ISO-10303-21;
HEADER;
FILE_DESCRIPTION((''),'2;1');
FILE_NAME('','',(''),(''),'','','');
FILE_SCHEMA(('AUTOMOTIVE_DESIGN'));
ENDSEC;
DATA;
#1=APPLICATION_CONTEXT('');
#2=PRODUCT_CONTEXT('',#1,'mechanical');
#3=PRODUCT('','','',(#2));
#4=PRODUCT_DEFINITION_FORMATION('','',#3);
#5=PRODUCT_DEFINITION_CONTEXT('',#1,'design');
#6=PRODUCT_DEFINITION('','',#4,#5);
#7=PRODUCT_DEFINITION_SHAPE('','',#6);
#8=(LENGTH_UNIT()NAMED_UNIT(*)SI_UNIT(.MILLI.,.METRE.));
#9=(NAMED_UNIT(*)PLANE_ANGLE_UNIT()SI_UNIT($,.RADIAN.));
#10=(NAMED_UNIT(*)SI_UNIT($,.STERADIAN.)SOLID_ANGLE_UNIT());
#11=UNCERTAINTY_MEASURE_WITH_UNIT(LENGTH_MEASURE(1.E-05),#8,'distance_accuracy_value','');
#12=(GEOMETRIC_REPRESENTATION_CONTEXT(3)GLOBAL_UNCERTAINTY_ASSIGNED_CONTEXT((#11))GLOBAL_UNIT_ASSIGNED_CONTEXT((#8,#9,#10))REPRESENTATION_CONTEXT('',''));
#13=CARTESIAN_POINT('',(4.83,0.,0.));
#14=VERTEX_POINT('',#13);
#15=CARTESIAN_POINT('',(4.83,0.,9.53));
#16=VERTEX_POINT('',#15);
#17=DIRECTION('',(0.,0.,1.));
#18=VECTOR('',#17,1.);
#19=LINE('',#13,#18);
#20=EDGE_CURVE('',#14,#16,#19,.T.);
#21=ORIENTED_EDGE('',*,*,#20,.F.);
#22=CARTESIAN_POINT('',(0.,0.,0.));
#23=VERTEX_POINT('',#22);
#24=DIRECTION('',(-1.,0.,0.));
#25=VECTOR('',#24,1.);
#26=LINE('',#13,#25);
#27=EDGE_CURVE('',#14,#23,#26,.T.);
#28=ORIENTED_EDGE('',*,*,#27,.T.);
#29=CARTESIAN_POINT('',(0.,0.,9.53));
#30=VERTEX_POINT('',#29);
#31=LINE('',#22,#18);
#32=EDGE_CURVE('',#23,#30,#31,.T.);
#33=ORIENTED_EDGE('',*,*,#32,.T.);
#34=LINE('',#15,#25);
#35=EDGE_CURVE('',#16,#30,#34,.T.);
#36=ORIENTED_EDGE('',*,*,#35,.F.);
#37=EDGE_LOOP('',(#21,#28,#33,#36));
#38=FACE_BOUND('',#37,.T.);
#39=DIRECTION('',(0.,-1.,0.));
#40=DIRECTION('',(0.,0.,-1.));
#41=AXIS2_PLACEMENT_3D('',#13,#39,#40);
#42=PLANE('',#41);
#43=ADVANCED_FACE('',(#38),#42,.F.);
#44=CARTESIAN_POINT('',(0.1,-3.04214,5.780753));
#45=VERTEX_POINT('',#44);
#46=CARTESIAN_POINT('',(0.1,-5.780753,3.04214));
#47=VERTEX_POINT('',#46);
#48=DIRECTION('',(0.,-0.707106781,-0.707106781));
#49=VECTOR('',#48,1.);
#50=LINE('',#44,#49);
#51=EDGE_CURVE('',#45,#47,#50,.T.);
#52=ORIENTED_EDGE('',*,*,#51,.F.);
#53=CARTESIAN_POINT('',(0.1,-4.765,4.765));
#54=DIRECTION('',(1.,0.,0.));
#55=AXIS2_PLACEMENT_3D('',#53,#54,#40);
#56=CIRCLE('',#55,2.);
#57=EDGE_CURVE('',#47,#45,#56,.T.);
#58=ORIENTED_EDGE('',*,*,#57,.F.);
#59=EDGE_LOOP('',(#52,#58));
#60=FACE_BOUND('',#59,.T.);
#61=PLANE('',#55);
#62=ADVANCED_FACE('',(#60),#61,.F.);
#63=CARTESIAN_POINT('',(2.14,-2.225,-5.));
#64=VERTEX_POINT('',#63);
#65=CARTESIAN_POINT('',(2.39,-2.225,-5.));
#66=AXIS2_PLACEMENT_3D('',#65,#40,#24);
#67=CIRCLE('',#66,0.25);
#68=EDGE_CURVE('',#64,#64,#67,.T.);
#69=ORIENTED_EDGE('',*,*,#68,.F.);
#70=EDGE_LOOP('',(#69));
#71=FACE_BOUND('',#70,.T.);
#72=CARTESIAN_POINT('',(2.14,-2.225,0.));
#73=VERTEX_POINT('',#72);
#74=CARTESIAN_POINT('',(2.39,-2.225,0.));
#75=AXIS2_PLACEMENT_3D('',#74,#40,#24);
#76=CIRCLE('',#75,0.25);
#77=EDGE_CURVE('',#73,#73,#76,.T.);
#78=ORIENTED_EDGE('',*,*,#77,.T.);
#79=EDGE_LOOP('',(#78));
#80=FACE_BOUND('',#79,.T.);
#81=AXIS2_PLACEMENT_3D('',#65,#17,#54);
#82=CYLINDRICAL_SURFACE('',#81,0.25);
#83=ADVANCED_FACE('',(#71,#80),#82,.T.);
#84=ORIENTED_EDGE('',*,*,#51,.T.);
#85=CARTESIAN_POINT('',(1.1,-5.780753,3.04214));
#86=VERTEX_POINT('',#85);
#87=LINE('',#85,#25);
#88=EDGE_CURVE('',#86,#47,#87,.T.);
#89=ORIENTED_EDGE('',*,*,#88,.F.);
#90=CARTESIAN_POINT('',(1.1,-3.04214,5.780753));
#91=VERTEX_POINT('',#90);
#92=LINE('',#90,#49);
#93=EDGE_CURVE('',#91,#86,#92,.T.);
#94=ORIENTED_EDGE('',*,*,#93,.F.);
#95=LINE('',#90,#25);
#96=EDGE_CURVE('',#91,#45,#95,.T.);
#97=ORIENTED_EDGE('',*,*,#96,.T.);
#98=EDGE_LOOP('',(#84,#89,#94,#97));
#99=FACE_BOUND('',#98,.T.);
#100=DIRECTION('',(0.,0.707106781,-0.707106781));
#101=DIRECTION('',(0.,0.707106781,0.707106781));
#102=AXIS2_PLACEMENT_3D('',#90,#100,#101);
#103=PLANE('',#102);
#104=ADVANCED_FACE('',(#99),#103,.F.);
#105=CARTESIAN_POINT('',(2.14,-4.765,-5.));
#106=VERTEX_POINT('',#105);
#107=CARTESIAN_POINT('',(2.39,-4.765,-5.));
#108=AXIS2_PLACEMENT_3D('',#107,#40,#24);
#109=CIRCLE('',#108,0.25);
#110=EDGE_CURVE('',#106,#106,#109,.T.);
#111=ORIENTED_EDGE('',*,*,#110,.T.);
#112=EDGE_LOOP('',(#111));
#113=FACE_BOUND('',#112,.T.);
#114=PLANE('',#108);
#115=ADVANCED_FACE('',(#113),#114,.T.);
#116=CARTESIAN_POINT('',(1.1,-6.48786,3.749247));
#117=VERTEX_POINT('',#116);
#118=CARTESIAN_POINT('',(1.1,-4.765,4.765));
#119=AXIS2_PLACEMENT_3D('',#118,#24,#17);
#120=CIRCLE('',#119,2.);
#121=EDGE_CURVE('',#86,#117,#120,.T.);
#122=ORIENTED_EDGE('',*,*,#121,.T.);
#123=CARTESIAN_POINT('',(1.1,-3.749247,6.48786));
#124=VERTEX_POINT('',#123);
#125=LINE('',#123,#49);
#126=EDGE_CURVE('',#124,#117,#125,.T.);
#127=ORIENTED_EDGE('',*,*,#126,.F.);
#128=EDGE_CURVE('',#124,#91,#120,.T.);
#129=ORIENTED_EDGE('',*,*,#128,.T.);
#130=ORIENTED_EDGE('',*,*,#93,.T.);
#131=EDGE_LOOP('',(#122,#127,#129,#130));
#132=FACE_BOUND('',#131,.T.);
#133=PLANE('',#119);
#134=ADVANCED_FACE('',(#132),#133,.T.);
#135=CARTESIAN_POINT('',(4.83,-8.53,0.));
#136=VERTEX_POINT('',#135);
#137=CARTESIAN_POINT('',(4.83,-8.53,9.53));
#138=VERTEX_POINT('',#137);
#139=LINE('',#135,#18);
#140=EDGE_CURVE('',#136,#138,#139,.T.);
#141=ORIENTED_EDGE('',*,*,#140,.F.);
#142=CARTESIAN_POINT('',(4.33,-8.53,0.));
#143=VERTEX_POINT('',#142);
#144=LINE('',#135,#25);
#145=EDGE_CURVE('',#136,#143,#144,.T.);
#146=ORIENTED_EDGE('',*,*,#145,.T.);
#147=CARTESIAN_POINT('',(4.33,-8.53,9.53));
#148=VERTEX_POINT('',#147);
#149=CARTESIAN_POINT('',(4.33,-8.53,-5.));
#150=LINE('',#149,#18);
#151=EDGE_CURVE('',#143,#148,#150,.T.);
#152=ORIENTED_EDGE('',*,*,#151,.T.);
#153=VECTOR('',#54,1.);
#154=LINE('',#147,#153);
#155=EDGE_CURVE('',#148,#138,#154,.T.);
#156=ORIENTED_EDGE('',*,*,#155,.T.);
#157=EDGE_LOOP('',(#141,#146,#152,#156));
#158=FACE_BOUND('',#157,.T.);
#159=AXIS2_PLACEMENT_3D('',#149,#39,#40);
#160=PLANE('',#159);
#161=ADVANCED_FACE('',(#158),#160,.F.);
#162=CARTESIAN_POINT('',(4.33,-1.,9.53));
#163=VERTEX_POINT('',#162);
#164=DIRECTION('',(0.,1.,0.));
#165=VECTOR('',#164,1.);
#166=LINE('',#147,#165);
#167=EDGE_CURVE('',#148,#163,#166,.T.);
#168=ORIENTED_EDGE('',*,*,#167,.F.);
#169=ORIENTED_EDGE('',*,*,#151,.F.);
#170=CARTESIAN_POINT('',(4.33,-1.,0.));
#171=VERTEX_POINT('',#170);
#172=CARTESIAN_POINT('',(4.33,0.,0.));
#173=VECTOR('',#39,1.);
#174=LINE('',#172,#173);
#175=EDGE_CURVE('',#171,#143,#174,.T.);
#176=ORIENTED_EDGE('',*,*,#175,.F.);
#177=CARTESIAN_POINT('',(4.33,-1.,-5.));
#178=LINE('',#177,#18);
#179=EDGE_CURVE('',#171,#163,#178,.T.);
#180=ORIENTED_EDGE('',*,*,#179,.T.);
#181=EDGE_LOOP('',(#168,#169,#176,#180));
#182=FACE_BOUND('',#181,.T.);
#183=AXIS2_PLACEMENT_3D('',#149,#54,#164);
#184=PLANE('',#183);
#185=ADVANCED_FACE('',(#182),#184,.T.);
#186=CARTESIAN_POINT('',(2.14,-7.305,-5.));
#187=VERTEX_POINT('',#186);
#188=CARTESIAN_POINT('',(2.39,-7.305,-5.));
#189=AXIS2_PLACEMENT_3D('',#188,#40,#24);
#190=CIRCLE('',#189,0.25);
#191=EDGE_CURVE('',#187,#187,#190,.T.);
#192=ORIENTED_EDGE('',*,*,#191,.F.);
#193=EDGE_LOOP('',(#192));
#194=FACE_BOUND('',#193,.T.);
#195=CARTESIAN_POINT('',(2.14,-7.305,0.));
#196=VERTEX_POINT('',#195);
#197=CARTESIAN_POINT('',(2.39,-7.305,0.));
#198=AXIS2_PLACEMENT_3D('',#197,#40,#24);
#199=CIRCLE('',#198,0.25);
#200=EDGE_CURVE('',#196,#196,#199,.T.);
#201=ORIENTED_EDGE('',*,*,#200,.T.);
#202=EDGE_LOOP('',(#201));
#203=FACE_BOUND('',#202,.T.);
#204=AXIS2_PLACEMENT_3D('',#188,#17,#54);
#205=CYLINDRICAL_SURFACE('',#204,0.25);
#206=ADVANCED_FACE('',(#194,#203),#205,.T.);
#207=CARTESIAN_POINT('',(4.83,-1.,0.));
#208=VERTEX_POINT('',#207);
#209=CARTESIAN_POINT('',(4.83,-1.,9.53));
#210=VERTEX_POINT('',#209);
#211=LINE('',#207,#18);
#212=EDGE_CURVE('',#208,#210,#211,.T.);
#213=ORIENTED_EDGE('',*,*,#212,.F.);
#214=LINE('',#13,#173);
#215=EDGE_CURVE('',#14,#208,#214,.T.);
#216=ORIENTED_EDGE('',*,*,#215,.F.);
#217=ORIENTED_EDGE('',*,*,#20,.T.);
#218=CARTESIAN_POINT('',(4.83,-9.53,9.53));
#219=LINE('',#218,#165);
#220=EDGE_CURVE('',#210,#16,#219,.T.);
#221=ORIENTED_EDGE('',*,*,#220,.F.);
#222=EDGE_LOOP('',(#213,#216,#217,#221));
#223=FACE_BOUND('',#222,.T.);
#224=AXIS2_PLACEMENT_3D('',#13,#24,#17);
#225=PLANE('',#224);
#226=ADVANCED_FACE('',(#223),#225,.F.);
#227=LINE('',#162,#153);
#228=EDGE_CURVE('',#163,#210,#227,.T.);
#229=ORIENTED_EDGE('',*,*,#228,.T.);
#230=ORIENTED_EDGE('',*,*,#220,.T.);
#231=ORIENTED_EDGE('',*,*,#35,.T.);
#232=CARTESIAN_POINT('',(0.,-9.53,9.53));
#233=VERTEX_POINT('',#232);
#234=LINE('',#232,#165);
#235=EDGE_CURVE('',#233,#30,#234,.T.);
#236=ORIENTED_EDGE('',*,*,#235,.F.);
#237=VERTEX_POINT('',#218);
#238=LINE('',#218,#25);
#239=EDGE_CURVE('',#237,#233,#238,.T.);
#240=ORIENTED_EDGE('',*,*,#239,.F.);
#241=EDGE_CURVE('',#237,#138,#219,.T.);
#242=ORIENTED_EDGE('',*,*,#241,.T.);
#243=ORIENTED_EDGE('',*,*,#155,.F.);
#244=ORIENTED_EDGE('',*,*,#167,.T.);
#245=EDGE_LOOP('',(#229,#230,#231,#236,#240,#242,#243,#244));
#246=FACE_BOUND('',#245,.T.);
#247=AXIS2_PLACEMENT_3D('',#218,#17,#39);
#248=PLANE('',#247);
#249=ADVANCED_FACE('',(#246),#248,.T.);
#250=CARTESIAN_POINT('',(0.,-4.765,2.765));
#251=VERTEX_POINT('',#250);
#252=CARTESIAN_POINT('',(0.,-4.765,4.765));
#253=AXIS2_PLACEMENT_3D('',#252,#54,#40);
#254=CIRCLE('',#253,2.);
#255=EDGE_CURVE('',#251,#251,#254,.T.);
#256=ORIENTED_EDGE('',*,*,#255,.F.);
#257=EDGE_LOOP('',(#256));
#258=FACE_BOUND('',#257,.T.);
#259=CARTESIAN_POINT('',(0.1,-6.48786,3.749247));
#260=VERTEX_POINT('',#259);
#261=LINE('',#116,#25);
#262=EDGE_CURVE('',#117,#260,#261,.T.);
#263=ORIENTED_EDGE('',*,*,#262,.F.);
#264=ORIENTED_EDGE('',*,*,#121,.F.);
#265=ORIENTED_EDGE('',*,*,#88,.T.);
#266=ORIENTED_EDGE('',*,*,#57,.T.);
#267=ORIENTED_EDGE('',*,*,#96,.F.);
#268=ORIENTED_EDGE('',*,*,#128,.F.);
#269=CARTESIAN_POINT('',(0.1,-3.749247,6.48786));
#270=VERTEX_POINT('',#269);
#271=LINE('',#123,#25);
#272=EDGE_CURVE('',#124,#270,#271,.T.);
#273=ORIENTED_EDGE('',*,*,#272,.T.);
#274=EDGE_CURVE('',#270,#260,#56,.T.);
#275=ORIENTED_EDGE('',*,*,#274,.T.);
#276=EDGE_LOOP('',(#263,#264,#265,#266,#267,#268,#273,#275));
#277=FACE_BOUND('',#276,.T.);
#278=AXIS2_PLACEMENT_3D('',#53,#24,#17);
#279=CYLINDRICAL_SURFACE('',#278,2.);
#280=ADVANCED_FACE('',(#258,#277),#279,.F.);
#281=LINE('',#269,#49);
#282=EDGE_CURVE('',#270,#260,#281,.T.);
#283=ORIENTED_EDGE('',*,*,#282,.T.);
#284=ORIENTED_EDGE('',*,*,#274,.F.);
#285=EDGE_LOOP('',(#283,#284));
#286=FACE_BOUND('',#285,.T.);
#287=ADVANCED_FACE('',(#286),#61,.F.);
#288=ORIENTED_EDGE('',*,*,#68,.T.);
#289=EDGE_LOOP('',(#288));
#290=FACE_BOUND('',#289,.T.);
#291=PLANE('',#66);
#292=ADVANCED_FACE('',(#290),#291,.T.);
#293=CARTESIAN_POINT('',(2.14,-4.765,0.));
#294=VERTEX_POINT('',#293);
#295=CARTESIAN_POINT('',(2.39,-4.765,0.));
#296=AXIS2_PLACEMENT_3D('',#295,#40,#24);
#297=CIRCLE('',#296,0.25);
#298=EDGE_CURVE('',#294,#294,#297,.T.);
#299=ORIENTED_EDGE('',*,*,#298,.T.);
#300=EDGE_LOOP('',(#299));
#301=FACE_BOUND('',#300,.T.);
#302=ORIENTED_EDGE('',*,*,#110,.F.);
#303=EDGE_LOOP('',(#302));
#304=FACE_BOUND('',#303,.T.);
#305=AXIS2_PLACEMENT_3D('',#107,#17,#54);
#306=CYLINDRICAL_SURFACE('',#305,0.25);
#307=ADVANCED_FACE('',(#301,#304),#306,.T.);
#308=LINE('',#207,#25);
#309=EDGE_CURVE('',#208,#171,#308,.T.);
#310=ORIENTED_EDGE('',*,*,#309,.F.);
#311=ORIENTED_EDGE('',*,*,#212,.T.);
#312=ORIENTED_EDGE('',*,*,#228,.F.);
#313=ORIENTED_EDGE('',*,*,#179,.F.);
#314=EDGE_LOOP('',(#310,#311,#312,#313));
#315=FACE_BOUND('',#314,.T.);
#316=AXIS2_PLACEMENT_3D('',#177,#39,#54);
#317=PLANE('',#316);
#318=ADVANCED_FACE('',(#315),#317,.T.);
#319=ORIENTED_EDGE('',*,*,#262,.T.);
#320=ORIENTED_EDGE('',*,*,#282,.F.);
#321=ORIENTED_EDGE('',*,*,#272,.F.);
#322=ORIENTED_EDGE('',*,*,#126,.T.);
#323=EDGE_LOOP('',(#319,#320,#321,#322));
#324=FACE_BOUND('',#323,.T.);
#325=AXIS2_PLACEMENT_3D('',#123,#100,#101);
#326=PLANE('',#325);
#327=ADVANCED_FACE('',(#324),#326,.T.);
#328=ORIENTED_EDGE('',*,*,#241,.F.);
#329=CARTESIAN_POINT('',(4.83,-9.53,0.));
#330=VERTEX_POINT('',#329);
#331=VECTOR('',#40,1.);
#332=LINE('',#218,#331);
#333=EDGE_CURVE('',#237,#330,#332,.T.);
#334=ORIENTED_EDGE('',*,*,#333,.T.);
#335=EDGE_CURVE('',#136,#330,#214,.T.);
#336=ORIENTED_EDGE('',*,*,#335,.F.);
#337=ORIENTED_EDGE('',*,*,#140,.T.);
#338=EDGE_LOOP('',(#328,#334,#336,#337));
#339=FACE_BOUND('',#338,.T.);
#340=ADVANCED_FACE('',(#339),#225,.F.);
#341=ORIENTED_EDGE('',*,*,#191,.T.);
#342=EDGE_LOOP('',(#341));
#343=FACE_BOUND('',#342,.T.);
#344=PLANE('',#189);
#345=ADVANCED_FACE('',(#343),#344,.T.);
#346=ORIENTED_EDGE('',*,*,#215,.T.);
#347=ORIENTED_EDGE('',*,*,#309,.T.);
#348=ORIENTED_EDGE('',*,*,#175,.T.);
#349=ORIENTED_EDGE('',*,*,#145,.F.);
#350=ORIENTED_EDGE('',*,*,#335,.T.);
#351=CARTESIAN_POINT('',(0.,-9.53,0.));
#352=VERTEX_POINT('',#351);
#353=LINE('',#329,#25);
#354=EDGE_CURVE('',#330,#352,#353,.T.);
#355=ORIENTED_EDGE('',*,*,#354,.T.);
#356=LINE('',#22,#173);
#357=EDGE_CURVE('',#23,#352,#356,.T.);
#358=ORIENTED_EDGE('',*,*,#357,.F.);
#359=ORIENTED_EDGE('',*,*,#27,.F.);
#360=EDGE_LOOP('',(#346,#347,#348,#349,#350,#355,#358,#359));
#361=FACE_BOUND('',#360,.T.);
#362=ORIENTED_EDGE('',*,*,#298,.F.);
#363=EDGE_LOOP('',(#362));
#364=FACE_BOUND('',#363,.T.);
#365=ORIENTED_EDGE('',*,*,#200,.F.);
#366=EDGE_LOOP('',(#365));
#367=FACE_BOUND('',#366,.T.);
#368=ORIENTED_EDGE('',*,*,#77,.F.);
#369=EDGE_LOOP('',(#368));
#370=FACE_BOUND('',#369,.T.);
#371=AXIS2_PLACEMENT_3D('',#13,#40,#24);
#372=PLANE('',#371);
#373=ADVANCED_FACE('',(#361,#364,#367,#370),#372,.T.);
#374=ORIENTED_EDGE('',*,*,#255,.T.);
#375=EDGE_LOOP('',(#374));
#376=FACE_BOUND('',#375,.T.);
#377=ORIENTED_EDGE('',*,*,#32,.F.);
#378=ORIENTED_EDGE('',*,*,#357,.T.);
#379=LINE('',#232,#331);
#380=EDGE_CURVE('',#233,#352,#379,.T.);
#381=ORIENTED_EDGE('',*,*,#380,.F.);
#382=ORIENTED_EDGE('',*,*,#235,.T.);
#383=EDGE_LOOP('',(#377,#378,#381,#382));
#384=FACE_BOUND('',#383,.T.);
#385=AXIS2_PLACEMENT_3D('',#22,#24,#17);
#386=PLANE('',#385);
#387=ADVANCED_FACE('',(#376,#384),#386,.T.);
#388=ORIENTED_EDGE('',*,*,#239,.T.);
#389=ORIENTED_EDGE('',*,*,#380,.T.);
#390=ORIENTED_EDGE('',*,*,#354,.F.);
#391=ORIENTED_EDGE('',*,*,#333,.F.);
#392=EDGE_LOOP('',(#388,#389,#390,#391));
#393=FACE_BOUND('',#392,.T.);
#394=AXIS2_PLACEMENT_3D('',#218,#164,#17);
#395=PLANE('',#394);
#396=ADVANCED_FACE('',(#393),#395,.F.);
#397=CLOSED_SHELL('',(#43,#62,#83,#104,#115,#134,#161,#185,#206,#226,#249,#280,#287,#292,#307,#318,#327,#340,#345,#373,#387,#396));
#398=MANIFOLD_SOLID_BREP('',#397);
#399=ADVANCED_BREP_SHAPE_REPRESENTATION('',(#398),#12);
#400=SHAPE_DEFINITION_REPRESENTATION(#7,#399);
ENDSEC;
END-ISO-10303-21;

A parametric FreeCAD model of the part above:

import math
import FreeCAD as App
import Part
import Sketcher

V = App.Vector
Q = App.Units.Quantity

doc = App.newDocument("Part")
body = doc.addObject("PartDesign::Body", "Body")

# Sketch on YZ plane
sketch1 = doc.addObject("Sketcher::SketchObject", "Sketch")
body.addObject(sketch1)
sketch1.AttachmentSupport = (doc.YZ_Plane, [""])
sketch1.MapMode = "FlatFace"
sketch1.addGeometry([
    Part.LineSegment(V(-9.53, 0, 0), V(0, 0, 0)),
    Part.LineSegment(V(0, 0, 0), V(0, 9.53, 0)),
    Part.LineSegment(V(0, 9.53, 0), V(-9.53, 9.53, 0)),
    Part.LineSegment(V(-9.53, 9.53, 0), V(-9.53, 0, 0)),
], False)
sketch1.addConstraint([
    Sketcher.Constraint("Coincident", 0, 2, 1, 1),
    Sketcher.Constraint("Coincident", 1, 2, 2, 1),
    Sketcher.Constraint("Coincident", 2, 2, 3, 1),
    Sketcher.Constraint("Coincident", 3, 2, 0, 1),
    Sketcher.Constraint("Horizontal", 0),
    Sketcher.Constraint("Vertical", 1),
    Sketcher.Constraint("Horizontal", 2),
    Sketcher.Constraint("Vertical", 3),
    Sketcher.Constraint("Coincident", 0, 2, -1, 1),
    Sketcher.Constraint("Equal", 2, 1),
    Sketcher.Constraint("DistanceX", 0, 1, 0, 2, 9.53),
])
pad1 = doc.addObject("PartDesign::Pad", "Pad")
body.addObject(pad1)
pad1.Profile = sketch1
pad1.Length = 4.83

# Sketch on YZ plane
sketch2 = doc.addObject("Sketcher::SketchObject", "Sketch001")
body.addObject(sketch2)
sketch2.AttachmentSupport = (doc.YZ_Plane, [""])
sketch2.MapMode = "FlatFace"
sketch2.addGeometry(Part.Circle(V(-4.765, 4.765, 0), V(0, 0, 1), 2), False)
sketch2.addConstraint([
    Sketcher.Constraint("Diameter", 0, 4.0),
    Sketcher.Constraint("DistanceX", 0, 3, -1, 1, 4.765),
    Sketcher.Constraint("DistanceY", -1, 1, 0, 3, 4.765),
])
pocket1 = doc.addObject("PartDesign::Pocket", "Pocket")
body.addObject(pocket1)
pocket1.Profile = sketch2
pocket1.Length = 0.1
pocket1.Reversed = True

# Sketch on YZ plane
sketch3 = doc.addObject("Sketcher::SketchObject", "Sketch002")
body.addObject(sketch3)
sketch3.AttachmentSupport = (doc.YZ_Plane, [""])
sketch3.MapMode = "FlatFace"
sketch3.AttachmentOffset = App.Placement(V(0, 0, 0.1), App.Rotation())
sketch3.addGeometry([
    Part.LineSegment(V(-6.48786, 3.749247, 0), V(-3.749247, 6.48786, 0)),
    Part.ArcOfCircle(Part.Circle(V(-4.765, 4.765, 0), V(0, 0, 1), 2), math.radians(30.522488), math.radians(59.477512)),
    Part.LineSegment(V(-3.04214, 5.780753, 0), V(-5.780753, 3.04214, 0)),
    Part.ArcOfCircle(Part.Circle(V(-4.765, 4.765, 0), V(0, 0, 1), 2), math.radians(-149.477512), math.radians(-120.522488)),
], False)
sketch3.addConstraint([
    Sketcher.Constraint("Coincident", 0, 2, 1, 2),
    Sketcher.Constraint("Coincident", 1, 1, 2, 1),
    Sketcher.Constraint("Coincident", 2, 2, 3, 2),
    Sketcher.Constraint("Coincident", 3, 1, 0, 1),
    Sketcher.Constraint("Coincident", 3, 3, 1, 3),
    Sketcher.Constraint("Equal", 1, 3),
    Sketcher.Constraint("Parallel", 0, 2),
    Sketcher.Constraint("Equal", 0, 2),
    Sketcher.Constraint("Radius", 1, 2.0),
    Sketcher.Constraint("Angle", 0, Q("45 deg")),
    Sketcher.Constraint("DistanceX", 1, 3, -1, 1, 4.765),
    Sketcher.Constraint("DistanceY", -1, 1, 1, 3, 4.765),
    Sketcher.Constraint("DistanceY", -1, 1, 0, 2, 6.48786),
])
pocket2 = doc.addObject("PartDesign::Pocket", "Pocket001")
body.addObject(pocket2)
pocket2.Profile = sketch3
pocket2.Length = 1
pocket2.Reversed = True

# Sketch on XY plane
sketch4 = doc.addObject("Sketcher::SketchObject", "Sketch003")
body.addObject(sketch4)
sketch4.AttachmentSupport = (doc.XY_Plane, [""])
sketch4.MapMode = "FlatFace"
sketch4.addGeometry([
    Part.Circle(V(2.39, -2.225, 0), V(0, 0, 1), 0.25),
    Part.Circle(V(2.39, -4.765, 0), V(0, 0, 1), 0.25),
    Part.Circle(V(2.39, -7.305, 0), V(0, 0, 1), 0.25),
], False)
sketch4.addConstraint([
    Sketcher.Constraint("Equal", 0, 1),
    Sketcher.Constraint("Equal", 1, 2),
    Sketcher.Constraint("Vertical", 0, 3, 1, 3),
    Sketcher.Constraint("Vertical", 1, 3, 2, 3),
    Sketcher.Constraint("Diameter", 0, 0.5),
    Sketcher.Constraint("DistanceX", -1, 1, 0, 3, 2.39),
    Sketcher.Constraint("DistanceY", 1, 3, 0, 3, 2.54),
    Sketcher.Constraint("DistanceY", 2, 3, 1, 3, 2.54),
    Sketcher.Constraint("DistanceY", 0, 3, -1, 1, 2.225),
])
pad2 = doc.addObject("PartDesign::Pad", "Pad001")
body.addObject(pad2)
pad2.Profile = sketch4
pad2.Length = 5
pad2.Reversed = True

# Sketch on XY plane
sketch5 = doc.addObject("Sketcher::SketchObject", "Sketch004")
body.addObject(sketch5)
sketch5.AttachmentSupport = (doc.XY_Plane, [""])
sketch5.MapMode = "FlatFace"
sketch5.AttachmentOffset = App.Placement(V(0, 0, 9.53), App.Rotation())
sketch5.addGeometry([
    Part.LineSegment(V(4.33, -1, 0), V(4.33, -8.53, 0)),
    Part.LineSegment(V(4.33, -8.53, 0), V(4.83, -8.53, 0)),
    Part.LineSegment(V(4.83, -8.53, 0), V(4.83, -1, 0)),
    Part.LineSegment(V(4.83, -1, 0), V(4.33, -1, 0)),
], False)
sketch5.addConstraint([
    Sketcher.Constraint("Coincident", 0, 2, 1, 1),
    Sketcher.Constraint("Coincident", 1, 2, 2, 1),
    Sketcher.Constraint("Coincident", 2, 2, 3, 1),
    Sketcher.Constraint("Coincident", 3, 2, 0, 1),
    Sketcher.Constraint("Vertical", 0),
    Sketcher.Constraint("Horizontal", 1),
    Sketcher.Constraint("Vertical", 2),
    Sketcher.Constraint("Horizontal", 3),
    Sketcher.Constraint("DistanceX", 1, 1, 1, 2, 0.5),
    Sketcher.Constraint("DistanceY", 2, 2, -1, 1, 1.0),
    Sketcher.Constraint("DistanceY", 0, 2, 0, 1, 7.53),
    Sketcher.Constraint("DistanceX", -1, 1, 0, 2, 4.33),
])
pocket3 = doc.addObject("PartDesign::Pocket", "Pocket002")
body.addObject(pocket3)
pocket3.Profile = sketch5
pocket3.Type = "ThroughAll"

doc.recompute()
